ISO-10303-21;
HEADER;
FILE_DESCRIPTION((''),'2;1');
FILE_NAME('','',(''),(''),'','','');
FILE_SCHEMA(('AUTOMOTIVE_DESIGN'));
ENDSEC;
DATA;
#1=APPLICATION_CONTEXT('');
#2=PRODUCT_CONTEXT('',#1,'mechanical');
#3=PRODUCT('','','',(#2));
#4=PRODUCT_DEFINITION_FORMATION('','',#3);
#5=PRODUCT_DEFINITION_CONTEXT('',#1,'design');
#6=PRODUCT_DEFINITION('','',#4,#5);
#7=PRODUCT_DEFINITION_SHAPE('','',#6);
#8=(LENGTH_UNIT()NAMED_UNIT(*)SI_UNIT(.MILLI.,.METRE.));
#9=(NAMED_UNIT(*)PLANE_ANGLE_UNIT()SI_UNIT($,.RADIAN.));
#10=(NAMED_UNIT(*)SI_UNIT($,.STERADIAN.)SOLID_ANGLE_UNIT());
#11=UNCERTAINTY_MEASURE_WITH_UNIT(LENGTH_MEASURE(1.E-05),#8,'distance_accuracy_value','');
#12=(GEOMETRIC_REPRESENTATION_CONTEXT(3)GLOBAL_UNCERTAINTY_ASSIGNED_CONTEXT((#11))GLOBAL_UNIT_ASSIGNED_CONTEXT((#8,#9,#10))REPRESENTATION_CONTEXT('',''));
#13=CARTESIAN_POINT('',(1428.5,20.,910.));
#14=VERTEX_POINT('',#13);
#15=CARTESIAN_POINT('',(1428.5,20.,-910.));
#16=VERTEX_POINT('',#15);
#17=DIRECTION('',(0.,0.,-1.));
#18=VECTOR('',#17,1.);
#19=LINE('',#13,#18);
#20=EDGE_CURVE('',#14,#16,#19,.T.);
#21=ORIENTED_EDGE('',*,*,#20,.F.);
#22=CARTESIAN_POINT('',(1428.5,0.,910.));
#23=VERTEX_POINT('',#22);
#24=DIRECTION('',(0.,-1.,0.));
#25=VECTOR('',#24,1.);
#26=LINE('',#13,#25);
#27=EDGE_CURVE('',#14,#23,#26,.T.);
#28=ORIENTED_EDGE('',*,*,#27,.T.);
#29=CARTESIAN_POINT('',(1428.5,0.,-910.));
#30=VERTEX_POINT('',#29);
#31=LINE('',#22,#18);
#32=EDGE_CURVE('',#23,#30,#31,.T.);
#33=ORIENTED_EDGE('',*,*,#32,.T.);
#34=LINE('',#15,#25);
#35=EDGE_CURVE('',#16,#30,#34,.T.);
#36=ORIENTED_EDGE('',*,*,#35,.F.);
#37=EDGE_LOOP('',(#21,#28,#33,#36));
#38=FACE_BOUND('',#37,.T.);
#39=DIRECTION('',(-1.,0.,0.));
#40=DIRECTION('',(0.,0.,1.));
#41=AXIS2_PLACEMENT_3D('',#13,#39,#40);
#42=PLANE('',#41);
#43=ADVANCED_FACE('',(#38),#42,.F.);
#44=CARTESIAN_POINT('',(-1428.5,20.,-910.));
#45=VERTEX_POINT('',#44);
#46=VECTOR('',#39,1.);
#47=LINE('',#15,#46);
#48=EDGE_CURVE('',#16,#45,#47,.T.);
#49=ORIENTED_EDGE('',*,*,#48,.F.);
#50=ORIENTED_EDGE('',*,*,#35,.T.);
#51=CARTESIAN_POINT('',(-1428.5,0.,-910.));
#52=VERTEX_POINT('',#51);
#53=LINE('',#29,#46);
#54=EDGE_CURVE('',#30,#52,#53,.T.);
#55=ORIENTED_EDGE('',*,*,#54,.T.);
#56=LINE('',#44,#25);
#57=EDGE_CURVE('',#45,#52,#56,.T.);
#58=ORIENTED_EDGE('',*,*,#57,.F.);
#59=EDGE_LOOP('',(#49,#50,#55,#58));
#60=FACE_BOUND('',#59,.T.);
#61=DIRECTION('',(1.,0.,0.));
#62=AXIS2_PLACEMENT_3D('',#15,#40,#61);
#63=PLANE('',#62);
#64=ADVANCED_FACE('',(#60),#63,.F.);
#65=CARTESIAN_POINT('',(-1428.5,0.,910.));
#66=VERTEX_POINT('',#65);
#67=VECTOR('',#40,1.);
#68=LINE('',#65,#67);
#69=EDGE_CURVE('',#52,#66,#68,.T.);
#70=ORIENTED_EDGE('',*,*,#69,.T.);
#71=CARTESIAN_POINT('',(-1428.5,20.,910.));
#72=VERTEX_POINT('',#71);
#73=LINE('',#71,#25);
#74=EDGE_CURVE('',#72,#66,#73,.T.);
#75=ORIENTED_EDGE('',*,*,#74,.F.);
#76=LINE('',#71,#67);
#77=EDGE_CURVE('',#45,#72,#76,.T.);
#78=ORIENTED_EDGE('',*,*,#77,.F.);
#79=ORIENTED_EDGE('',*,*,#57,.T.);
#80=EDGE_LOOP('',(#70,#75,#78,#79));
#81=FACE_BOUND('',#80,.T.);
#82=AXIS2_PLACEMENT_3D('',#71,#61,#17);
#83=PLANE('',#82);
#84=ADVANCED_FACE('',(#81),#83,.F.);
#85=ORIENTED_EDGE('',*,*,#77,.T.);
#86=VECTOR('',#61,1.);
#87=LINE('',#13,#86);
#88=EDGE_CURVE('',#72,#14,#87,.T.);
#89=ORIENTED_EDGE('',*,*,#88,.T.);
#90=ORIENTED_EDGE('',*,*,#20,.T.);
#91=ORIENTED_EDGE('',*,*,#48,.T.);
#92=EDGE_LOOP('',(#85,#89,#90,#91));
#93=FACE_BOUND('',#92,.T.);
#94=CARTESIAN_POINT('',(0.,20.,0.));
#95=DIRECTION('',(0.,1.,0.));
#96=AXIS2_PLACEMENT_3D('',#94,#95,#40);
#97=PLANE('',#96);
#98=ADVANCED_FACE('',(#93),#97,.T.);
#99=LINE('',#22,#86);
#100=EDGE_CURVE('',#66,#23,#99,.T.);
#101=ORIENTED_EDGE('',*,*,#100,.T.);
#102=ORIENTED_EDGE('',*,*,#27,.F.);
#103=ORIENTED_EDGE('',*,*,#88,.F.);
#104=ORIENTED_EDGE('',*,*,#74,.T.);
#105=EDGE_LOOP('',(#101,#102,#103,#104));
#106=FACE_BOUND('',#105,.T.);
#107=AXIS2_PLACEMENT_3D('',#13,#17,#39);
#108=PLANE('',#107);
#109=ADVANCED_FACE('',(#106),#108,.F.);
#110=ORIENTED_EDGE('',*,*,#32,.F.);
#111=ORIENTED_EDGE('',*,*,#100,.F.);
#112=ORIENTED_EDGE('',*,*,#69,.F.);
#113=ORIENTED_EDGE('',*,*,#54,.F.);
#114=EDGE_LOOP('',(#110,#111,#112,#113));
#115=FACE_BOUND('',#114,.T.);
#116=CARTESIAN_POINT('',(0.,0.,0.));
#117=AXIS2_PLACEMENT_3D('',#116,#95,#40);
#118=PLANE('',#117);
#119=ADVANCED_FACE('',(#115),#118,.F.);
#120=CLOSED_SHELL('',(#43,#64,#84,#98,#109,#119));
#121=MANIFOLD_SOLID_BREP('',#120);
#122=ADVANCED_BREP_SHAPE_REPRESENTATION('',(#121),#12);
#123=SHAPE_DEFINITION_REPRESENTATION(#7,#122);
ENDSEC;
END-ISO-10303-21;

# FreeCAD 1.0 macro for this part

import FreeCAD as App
import Part
import Sketcher

V = App.Vector
Q = App.Units.Quantity


def add_polygon(sketch, points):
    """Adds a closed chain of lines whose ends are joined by coincident constraints."""
    first, n = sketch.GeometryCount, len(points)
    for a, b in zip(points, points[1:] + points[:1]):
        sketch.addGeometry(Part.LineSegment(App.Vector(*a, 0), App.Vector(*b, 0)), False)
    for i in range(n):
        sketch.addConstraint(Sketcher.Constraint("Coincident", first + i, 2, first + (i + 1) % n, 1))

doc = App.newDocument("Part")
body = doc.addObject("PartDesign::Body", "Body")

sketch1 = body.newObject("Sketcher::SketchObject", "Sketch")
sketch1.AttachmentSupport = (doc.getObject("XZ_Plane"), [""])
sketch1.MapMode = "FlatFace"
add_polygon(sketch1, [(-1428, -910), (-1428, 910), (1428, 910), (1428, -910)])
sketch1.addConstraint(Sketcher.Constraint("Vertical", 0))
sketch1.addConstraint(Sketcher.Constraint("Horizontal", 1))
sketch1.addConstraint(Sketcher.Constraint("Vertical", 2))
sketch1.addConstraint(Sketcher.Constraint("Horizontal", 3))
sketch1.addConstraint(Sketcher.Constraint("Symmetric", 0, 2, 2, 2, -1, 1))
sketch1.addConstraint(Sketcher.Constraint("DistanceX", 1, 1, 1, 2, Q("2857 mm")))
sketch1.addConstraint(Sketcher.Constraint("DistanceY", 0, 1, 0, 2, Q("1820 mm")))
pad1 = body.newObject("PartDesign::Pad", "Pad")
pad1.Profile = sketch1
pad1.Length = 20
pad1.Reversed = True

doc.recompute()
